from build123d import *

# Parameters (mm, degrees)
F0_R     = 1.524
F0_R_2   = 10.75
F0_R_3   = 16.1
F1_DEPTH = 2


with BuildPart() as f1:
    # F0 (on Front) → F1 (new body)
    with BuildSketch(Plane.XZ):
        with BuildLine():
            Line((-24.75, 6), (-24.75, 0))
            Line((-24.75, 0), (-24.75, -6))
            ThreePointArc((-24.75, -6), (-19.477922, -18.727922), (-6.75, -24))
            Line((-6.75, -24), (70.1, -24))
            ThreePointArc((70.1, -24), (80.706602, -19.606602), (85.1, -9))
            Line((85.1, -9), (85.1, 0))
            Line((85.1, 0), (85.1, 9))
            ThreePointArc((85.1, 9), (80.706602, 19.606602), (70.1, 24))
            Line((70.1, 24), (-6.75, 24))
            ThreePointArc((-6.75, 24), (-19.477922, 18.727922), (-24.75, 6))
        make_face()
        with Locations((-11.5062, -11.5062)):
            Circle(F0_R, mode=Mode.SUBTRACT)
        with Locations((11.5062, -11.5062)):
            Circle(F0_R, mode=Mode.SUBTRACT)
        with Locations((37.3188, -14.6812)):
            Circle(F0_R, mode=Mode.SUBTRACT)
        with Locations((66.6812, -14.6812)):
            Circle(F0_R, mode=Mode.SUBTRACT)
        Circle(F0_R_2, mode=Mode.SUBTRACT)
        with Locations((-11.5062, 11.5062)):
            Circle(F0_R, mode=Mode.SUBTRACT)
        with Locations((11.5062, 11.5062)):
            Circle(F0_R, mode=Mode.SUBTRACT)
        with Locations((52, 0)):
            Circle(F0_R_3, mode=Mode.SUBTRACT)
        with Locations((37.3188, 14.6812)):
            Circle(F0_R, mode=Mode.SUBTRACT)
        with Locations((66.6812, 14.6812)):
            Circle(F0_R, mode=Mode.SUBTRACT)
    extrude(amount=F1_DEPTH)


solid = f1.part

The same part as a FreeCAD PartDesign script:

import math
import FreeCAD as App
import Part
import Sketcher
from FreeCAD import Vector
Q = App.Units.Quantity

doc = App.newDocument("Part")
body = doc.addObject("PartDesign::Body", "Body")

# Sketch on XZ plane
sketch1 = body.newObject("Sketcher::SketchObject", "Sketch")
sketch1.AttachmentSupport = (doc.getObject("XZ_Plane"), [""])
sketch1.MapMode = "FlatFace"
sketch1.addGeometry([
    Part.LineSegment(Vector(-24.75, 6, 0), Vector(-24.75, -6, 0)),  # 0
    Part.ArcOfCircle(Part.Circle(Vector(-6.75, -6, 0), Vector(0, 0, 1), 18), math.radians(-179.999999), math.radians(-90.000001)),  # 1
    Part.LineSegment(Vector(-6.75, -24, 0), Vector(70.1, -24, 0)),  # 2
    Part.ArcOfCircle(Part.Circle(Vector(70.100001, -9.000001, 0), Vector(0, 0, 1), 14.999999), math.radians(-90.000004), math.radians(0.000004)),  # 3
    Part.LineSegment(Vector(85.1, -9, 0), Vector(85.1, 9, 0)),  # 4
    Part.ArcOfCircle(Part.Circle(Vector(70.100001, 9.000001, 0), Vector(0, 0, 1), 14.999999), math.radians(-0.000004), math.radians(90.000004)),  # 5
    Part.LineSegment(Vector(70.1, 24, 0), Vector(-6.75, 24, 0)),  # 6
    Part.ArcOfCircle(Part.Circle(Vector(-6.75, 6, 0), Vector(0, 0, 1), 18), math.radians(90.000001), math.radians(179.999999)),  # 7
    Part.Circle(Vector(-11.5062, -11.5062, 0), Vector(0, 0, 1), 1.524),  # 8
    Part.Circle(Vector(11.5062, -11.5062, 0), Vector(0, 0, 1), 1.524),  # 9
    Part.Circle(Vector(37.3188, -14.6812, 0), Vector(0, 0, 1), 1.524),  # 10
    Part.Circle(Vector(66.6812, -14.6812, 0), Vector(0, 0, 1), 1.524),  # 11
    Part.Circle(Vector(0, 0, 0), Vector(0, 0, 1), 10.75),  # 12
    Part.Circle(Vector(-11.5062, 11.5062, 0), Vector(0, 0, 1), 1.524),  # 13
    Part.Circle(Vector(11.5062, 11.5062, 0), Vector(0, 0, 1), 1.524),  # 14
    Part.Circle(Vector(52, 0, 0), Vector(0, 0, 1), 16.1),  # 15
    Part.Circle(Vector(37.3188, 14.6812, 0), Vector(0, 0, 1), 1.524),  # 16
    Part.Circle(Vector(66.6812, 14.6812, 0), Vector(0, 0, 1), 1.524),  # 17
], False)
sketch1.addConstraint([
    Sketcher.Constraint("Tangent", 0, 2, 1, 1),
    Sketcher.Constraint("Tangent", 1, 2, 2, 1),
    Sketcher.Constraint("Tangent", 2, 2, 3, 1),
    Sketcher.Constraint("Tangent", 3, 2, 4, 1),
    Sketcher.Constraint("Tangent", 4, 2, 5, 1),
    Sketcher.Constraint("Tangent", 5, 2, 6, 1),
    Sketcher.Constraint("Tangent", 6, 2, 7, 1),
    Sketcher.Constraint("Tangent", 7, 2, 0, 1),
    Sketcher.Constraint("Vertical", 0),
    Sketcher.Constraint("Horizontal", 2),
    Sketcher.Constraint("Vertical", 4),
    Sketcher.Constraint("Horizontal", 6),
    Sketcher.Constraint("Coincident", 12, 3, -1, 1),
    Sketcher.Constraint("Equal", 3, 5),
    Sketcher.Constraint("Equal", 1, 7),
    Sketcher.Constraint("Equal", 8, 9),
    Sketcher.Constraint("Equal", 9, 10),
    Sketcher.Constraint("Equal", 10, 11),
    Sketcher.Constraint("Equal", 11, 13),
    Sketcher.Constraint("Equal", 13, 14),
    Sketcher.Constraint("Equal", 14, 16),
    Sketcher.Constraint("Equal", 16, 17),
    Sketcher.Constraint("Symmetric", 9, 3, 13, 3, -1, 1),
    Sketcher.Constraint("Symmetric", 8, 3, 14, 3, -1, 1),
    Sketcher.Constraint("Symmetric", 8, 3, 9, 3, -2),
    Sketcher.Constraint("Symmetric", 10, 3, 16, 3, -1),
    Sketcher.Constraint("Symmetric", 11, 3, 17, 3, -1),
    Sketcher.Constraint("PointOnObject", 15, 3, -1),
    Sketcher.Constraint("Horizontal", 10, 3, 11, 3),
    Sketcher.Constraint("Radius", 1, Q("18 mm")),
    Sketcher.Constraint("Radius", 3, Q("14.999999 mm")),
    Sketcher.Constraint("Diameter", 12, Q("21.5 mm")),
    Sketcher.Constraint("Diameter", 15, Q("32.2 mm")),
    Sketcher.Constraint("DistanceY", 0, 2, 0, 1, Q("12 mm")),
    Sketcher.Constraint("Diameter", 8, Q("3.048 mm")),
    Sketcher.Constraint("DistanceY", 1, 3, -1, 1, Q("6 mm")),
    Sketcher.Constraint("DistanceX", -1, 1, 15, 3, Q("52 mm")),
    Sketcher.Constraint("DistanceX", 2, 1, 2, 2, Q("76.85 mm")),
    Sketcher.Constraint("DistanceX", -1, 1, 3, 3, Q("70.100001 mm")),
    Sketcher.Constraint("DistanceY", 10, 3, 9, 3, Q("3.175 mm")),
    Sketcher.Constraint("DistanceX", 9, 3, 11, 3, Q("55.175 mm")),
    Sketcher.Constraint("DistanceX", 8, 3, -1, 1, Q("11.5062 mm")),
    Sketcher.Constraint("DistanceY", 8, 3, -1, 1, Q("11.5062 mm")),
    Sketcher.Constraint("DistanceX", -1, 1, 10, 3, Q("37.3188 mm")),
])
pad1 = body.newObject("PartDesign::Pad", "Pad")
pad1.Profile = sketch1
pad1.Length = 2

doc.recompute()
